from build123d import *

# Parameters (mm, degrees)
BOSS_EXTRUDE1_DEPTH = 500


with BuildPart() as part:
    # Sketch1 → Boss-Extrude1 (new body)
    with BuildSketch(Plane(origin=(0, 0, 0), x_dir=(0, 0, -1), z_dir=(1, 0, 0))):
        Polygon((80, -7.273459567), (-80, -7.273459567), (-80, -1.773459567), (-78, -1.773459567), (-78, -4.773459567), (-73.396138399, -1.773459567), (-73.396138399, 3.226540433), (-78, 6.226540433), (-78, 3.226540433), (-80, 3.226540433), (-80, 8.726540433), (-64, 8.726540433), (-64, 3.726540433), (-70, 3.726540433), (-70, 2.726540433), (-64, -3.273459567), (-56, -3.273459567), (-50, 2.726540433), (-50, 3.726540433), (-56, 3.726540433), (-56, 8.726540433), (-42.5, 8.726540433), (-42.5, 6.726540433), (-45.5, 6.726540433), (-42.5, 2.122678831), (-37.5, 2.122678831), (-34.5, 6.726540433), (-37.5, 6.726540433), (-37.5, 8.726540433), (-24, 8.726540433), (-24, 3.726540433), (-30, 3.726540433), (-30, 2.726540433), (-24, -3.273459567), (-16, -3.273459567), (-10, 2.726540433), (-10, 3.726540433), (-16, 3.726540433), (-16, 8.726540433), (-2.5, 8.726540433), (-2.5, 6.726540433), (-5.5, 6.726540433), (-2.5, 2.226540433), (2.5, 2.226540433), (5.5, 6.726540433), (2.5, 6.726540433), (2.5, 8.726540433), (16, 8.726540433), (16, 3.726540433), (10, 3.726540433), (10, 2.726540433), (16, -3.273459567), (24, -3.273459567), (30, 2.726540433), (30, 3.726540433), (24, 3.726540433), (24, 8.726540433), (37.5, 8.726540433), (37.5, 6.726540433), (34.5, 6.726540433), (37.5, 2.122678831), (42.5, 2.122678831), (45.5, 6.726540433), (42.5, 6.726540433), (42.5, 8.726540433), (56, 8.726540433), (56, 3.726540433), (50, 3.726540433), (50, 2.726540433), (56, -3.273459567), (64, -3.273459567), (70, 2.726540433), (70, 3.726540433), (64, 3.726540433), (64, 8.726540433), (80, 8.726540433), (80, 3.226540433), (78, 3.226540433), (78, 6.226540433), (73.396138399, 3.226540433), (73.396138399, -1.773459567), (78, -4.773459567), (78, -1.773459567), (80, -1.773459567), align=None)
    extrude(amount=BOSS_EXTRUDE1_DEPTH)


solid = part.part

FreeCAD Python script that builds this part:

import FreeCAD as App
import Part
import Sketcher
Q = App.Units.Quantity


def add_polygon(sketch, points):
    """Adds a closed chain of lines whose ends are joined by coincident constraints."""
    first, n = sketch.GeometryCount, len(points)
    for a, b in zip(points, points[1:] + points[:1]):
        sketch.addGeometry(Part.LineSegment(App.Vector(*a, 0), App.Vector(*b, 0)), False)
    for i in range(n):
        sketch.addConstraint(Sketcher.Constraint("Coincident", first + i, 2, first + (i + 1) % n, 1))

doc = App.newDocument("Part")
body = doc.addObject("PartDesign::Body", "Body")

sketch1 = body.newObject("Sketcher::SketchObject", "Sketch")
sketch1.AttachmentSupport = (doc.getObject("YZ_Plane"), [""])
sketch1.MapMode = "FlatFace"
add_polygon(sketch1, [(-7.3, 80), (-7.3, -80), (-1.8, -80), (-1.8, -78), (-4.8, -78), (-1.8, -73.4), (3.2, -73.4), (6.2, -78), (3.2, -78), (3.2, -80), (8.7, -80), (8.7, -64), (3.7, -64), (3.7, -70), (2.7, -70), (-3.3, -64), (-3.3, -56), (2.7, -50), (3.7, -50), (3.7, -56), (8.7, -56), (8.7, -42.5), (6.7, -42.5), (6.7, -45.5), (2.1, -42.5), (2.1, -37.5), (6.7, -34.5), (6.7, -37.5), (8.7, -37.5), (8.7, -24), (3.7, -24), (3.7, -30), (2.7, -30), (-3.3, -24), (-3.3, -16), (2.7, -10), (3.7, -10), (3.7, -16), (8.7, -16), (8.7, -2.5), (6.7, -2.5), (6.7, -5.5), (2.2, -2.5), (2.2, 2.5), (6.7, 5.5), (6.7, 2.5), (8.7, 2.5), (8.7, 16), (3.7, 16), (3.7, 10), (2.7, 10), (-3.3, 16), (-3.3, 24), (2.7, 30), (3.7, 30), (3.7, 24), (8.7, 24), (8.7, 37.5), (6.7, 37.5), (6.7, 34.5), (2.1, 37.5), (2.1, 42.5), (6.7, 45.5), (6.7, 42.5), (8.7, 42.5), (8.7, 56), (3.7, 56), (3.7, 50), (2.7, 50), (-3.3, 56), (-3.3, 64), (2.7, 70), (3.7, 70), (3.7, 64), (8.7, 64), (8.7, 80), (3.2, 80), (3.2, 78), (6.2, 78), (3.2, 73.4), (-1.8, 73.4), (-4.8, 78), (-1.8, 78), (-1.8, 80)])
sketch1.addConstraint([
    Sketcher.Constraint("Vertical", 0),
    Sketcher.Constraint("Horizontal", 1),
    Sketcher.Constraint("Vertical", 2),
    Sketcher.Constraint("Horizontal", 3),
    Sketcher.Constraint("Horizontal", 5),
    Sketcher.Constraint("Horizontal", 7),
    Sketcher.Constraint("Vertical", 8),
    Sketcher.Constraint("Horizontal", 9),
    Sketcher.Constraint("Vertical", 10),
    Sketcher.Constraint("Horizontal", 11),
    Sketcher.Constraint("Vertical", 12),
    Sketcher.Constraint("Horizontal", 13),
    Sketcher.Constraint("Vertical", 15),
    Sketcher.Constraint("Horizontal", 17),
    Sketcher.Constraint("Vertical", 18),
    Sketcher.Constraint("Horizontal", 19),
    Sketcher.Constraint("Vertical", 20),
    Sketcher.Constraint("Horizontal", 21),
    Sketcher.Constraint("Vertical", 22),
    Sketcher.Constraint("Vertical", 24),
    Sketcher.Constraint("Vertical", 26),
    Sketcher.Constraint("Horizontal", 27),
    Sketcher.Constraint("Vertical", 28),
    Sketcher.Constraint("Horizontal", 29),
    Sketcher.Constraint("Vertical", 30),
    Sketcher.Constraint("Horizontal", 31),
    Sketcher.Constraint("Vertical", 33),
    Sketcher.Constraint("Horizontal", 35),
    Sketcher.Constraint("Vertical", 36),
    Sketcher.Constraint("Horizontal", 37),
    Sketcher.Constraint("Vertical", 38),
    Sketcher.Constraint("Horizontal", 39),
    Sketcher.Constraint("Vertical", 40),
    Sketcher.Constraint("Vertical", 42),
    Sketcher.Constraint("Vertical", 44),
    Sketcher.Constraint("Horizontal", 45),
    Sketcher.Constraint("Vertical", 46),
    Sketcher.Constraint("Horizontal", 47),
    Sketcher.Constraint("Vertical", 48),
    Sketcher.Constraint("Horizontal", 49),
    Sketcher.Constraint("Vertical", 51),
    Sketcher.Constraint("Horizontal", 53),
    Sketcher.Constraint("Vertical", 54),
    Sketcher.Constraint("Horizontal", 55),
    Sketcher.Constraint("Vertical", 56),
    Sketcher.Constraint("Horizontal", 57),
    Sketcher.Constraint("Vertical", 58),
    Sketcher.Constraint("Vertical", 60),
    Sketcher.Constraint("Vertical", 62),
    Sketcher.Constraint("Horizontal", 63),
    Sketcher.Constraint("Vertical", 64),
    Sketcher.Constraint("Horizontal", 65),
    Sketcher.Constraint("Vertical", 66),
    Sketcher.Constraint("Horizontal", 67),
    Sketcher.Constraint("Vertical", 69),
    Sketcher.Constraint("Horizontal", 71),
    Sketcher.Constraint("Vertical", 72),
    Sketcher.Constraint("Horizontal", 73),
    Sketcher.Constraint("Vertical", 74),
    Sketcher.Constraint("Horizontal", 75),
    Sketcher.Constraint("Vertical", 76),
    Sketcher.Constraint("Horizontal", 77),
    Sketcher.Constraint("Horizontal", 79),
    Sketcher.Constraint("Horizontal", 81),
    Sketcher.Constraint("Vertical", 82),
    Sketcher.Constraint("Horizontal", 83),
    Sketcher.Constraint("Symmetric", 40, 2, 43, 2, -1),
    Sketcher.Constraint("Symmetric", 38, 2, 45, 2, -1),
    Sketcher.Constraint("Symmetric", 36, 2, 47, 2, -1),
    Sketcher.Constraint("Symmetric", 34, 2, 49, 2, -1),
    Sketcher.Constraint("Symmetric", 33, 2, 50, 2, -1),
    Sketcher.Constraint("Symmetric", 31, 2, 52, 2, -1),
    Sketcher.Constraint("Symmetric", 29, 2, 54, 2, -1),
    Sketcher.Constraint("Symmetric", 27, 2, 56, 2, -1),
    Sketcher.Constraint("Symmetric", 25, 2, 58, 2, -1),
    Sketcher.Constraint("Symmetric", 24, 2, 59, 2, -1),
    Sketcher.Constraint("Symmetric", 22, 2, 61, 2, -1),
    Sketcher.Constraint("Symmetric", 20, 2, 63, 2, -1),
    Sketcher.Constraint("Symmetric", 18, 2, 65, 2, -1),
    Sketcher.Constraint("Symmetric", 16, 2, 67, 2, -1),
    Sketcher.Constraint("Symmetric", 15, 2, 68, 2, -1),
    Sketcher.Constraint("Symmetric", 13, 2, 70, 2, -1),
    Sketcher.Constraint("Symmetric", 11, 2, 72, 2, -1),
    Sketcher.Constraint("Symmetric", 9, 2, 74, 2, -1),
    Sketcher.Constraint("Symmetric", 7, 2, 76, 2, -1),
    Sketcher.Constraint("Symmetric", 5, 2, 78, 2, -1),
    Sketcher.Constraint("Symmetric", 3, 2, 80, 2, -1),
    Sketcher.Constraint("Symmetric", 1, 2, 82, 2, -1),
    Sketcher.Constraint("Perpendicular", 14, 16),
    Sketcher.Constraint("Perpendicular", 4, 23),
    Sketcher.Constraint("Perpendicular", 6, 25),
    Sketcher.Constraint("Perpendicular", 16, 32),
    Sketcher.Constraint("Perpendicular", 32, 34),
    Sketcher.Constraint("Perpendicular", 34, 50),
    Sketcher.Constraint("Perpendicular", 50, 52),
    Sketcher.Constraint("Parallel", 23, 59),
    Sketcher.Constraint("Parallel", 25, 61),
    Sketcher.Constraint("Perpendicular", 68, 70),
    Sketcher.Constraint("Perpendicular", 59, 78),
    Sketcher.Constraint("Perpendicular", 61, 80),
    Sketcher.Constraint("Horizontal", 3, 2, 6, 2),
    Sketcher.Constraint("Horizontal", 1, 2, 8, 2),
    Sketcher.Constraint("Horizontal", 11, 2, 14, 2),
    Sketcher.Constraint("Horizontal", 15, 2, 18, 2),
    Sketcher.Constraint("Horizontal", 21, 2, 23, 2),
    Sketcher.Constraint("Horizontal", 24, 2, 26, 2),
    Sketcher.Constraint("Horizontal", 29, 2, 32, 2),
    Sketcher.Constraint("Horizontal", 33, 2, 36, 2),
    Sketcher.Constraint("Horizontal", 39, 2, 41, 2),
    Sketcher.Constraint("Horizontal", 42, 2, 44, 2),
    Sketcher.Constraint("Vertical", 2, 2, 4, 2),
    Sketcher.Constraint("Vertical", 5, 2, 7, 2),
    Sketcher.Constraint("Vertical", 13, 2, 16, 2),
    Sketcher.Constraint("Vertical", 12, 2, 17, 2),
    Sketcher.Constraint("Vertical", 10, 2, 19, 2),
    Sketcher.Constraint("Vertical", 22, 2, 25, 2),
    Sketcher.Constraint("Vertical", 20, 2, 27, 2),
    Sketcher.Constraint("Vertical", 18, 2, 29, 2),
    Sketcher.Constraint("Vertical", 16, 2, 31, 2),
    Sketcher.Constraint("Vertical", 15, 2, 32, 2),
    Sketcher.Constraint("Vertical", 31, 2, 34, 2),
    Sketcher.Constraint("Vertical", 30, 2, 35, 2),
    Sketcher.Constraint("Vertical", 28, 2, 37, 2),
    Sketcher.Constraint("Vertical", 26, 2, 39, 2),
    Sketcher.Constraint("Equal", 1, 9),
    Sketcher.Constraint("Equal", 5, 11),
    Sketcher.Constraint("Equal", 63, 2),
    Sketcher.Constraint("Equal", 81, 22),
    Sketcher.Constraint("Equal", 79, 24),
    Sketcher.Constraint("Equal", 20, 28),
    Sketcher.Constraint("Equal", 15, 33),
    Sketcher.Constraint("Equal", 28, 38),
    Sketcher.Constraint("Equal", 26, 40),
    Sketcher.Constraint("Equal", 24, 42),
    Sketcher.Constraint("DistanceX", 3, 2, 3, 1, Q("3 mm")),
    Sketcher.Constraint("DistanceX", 5, 1, 5, 2, Q("5 mm")),
    Sketcher.Constraint("DistanceX", 13, 2, 13, 1, Q("1 mm")),
    Sketcher.Constraint("DistanceX", 21, 2, 21, 1, Q("2 mm")),
    Sketcher.Constraint("DistanceY", 0, 2, 0, 1, Q("160 mm")),
    Sketcher.Constraint("DistanceY", 10, 1, 10, 2, Q("16 mm")),
    Sketcher.Constraint("DistanceY", 12, 2, 12, 1, Q("6 mm")),
    Sketcher.Constraint("DistanceY", 15, 1, 15, 2, Q("8 mm")),
    Sketcher.Constraint("DistanceX", 1, 1, 1, 2, Q("5.5 mm")),
    Sketcher.Constraint("DistanceX", 0, 2, -1, 1, Q("7.27346 mm")),
    Sketcher.Constraint("DistanceY", 4, 2, -1, 1, Q("73.396138 mm")),
    Sketcher.Constraint("DistanceX", -1, 1, 41, 2, Q("2.22654 mm")),
])
pad1 = body.newObject("PartDesign::Pad", "Pad")
pad1.Profile = sketch1
pad1.Length = 500

doc.recompute()
